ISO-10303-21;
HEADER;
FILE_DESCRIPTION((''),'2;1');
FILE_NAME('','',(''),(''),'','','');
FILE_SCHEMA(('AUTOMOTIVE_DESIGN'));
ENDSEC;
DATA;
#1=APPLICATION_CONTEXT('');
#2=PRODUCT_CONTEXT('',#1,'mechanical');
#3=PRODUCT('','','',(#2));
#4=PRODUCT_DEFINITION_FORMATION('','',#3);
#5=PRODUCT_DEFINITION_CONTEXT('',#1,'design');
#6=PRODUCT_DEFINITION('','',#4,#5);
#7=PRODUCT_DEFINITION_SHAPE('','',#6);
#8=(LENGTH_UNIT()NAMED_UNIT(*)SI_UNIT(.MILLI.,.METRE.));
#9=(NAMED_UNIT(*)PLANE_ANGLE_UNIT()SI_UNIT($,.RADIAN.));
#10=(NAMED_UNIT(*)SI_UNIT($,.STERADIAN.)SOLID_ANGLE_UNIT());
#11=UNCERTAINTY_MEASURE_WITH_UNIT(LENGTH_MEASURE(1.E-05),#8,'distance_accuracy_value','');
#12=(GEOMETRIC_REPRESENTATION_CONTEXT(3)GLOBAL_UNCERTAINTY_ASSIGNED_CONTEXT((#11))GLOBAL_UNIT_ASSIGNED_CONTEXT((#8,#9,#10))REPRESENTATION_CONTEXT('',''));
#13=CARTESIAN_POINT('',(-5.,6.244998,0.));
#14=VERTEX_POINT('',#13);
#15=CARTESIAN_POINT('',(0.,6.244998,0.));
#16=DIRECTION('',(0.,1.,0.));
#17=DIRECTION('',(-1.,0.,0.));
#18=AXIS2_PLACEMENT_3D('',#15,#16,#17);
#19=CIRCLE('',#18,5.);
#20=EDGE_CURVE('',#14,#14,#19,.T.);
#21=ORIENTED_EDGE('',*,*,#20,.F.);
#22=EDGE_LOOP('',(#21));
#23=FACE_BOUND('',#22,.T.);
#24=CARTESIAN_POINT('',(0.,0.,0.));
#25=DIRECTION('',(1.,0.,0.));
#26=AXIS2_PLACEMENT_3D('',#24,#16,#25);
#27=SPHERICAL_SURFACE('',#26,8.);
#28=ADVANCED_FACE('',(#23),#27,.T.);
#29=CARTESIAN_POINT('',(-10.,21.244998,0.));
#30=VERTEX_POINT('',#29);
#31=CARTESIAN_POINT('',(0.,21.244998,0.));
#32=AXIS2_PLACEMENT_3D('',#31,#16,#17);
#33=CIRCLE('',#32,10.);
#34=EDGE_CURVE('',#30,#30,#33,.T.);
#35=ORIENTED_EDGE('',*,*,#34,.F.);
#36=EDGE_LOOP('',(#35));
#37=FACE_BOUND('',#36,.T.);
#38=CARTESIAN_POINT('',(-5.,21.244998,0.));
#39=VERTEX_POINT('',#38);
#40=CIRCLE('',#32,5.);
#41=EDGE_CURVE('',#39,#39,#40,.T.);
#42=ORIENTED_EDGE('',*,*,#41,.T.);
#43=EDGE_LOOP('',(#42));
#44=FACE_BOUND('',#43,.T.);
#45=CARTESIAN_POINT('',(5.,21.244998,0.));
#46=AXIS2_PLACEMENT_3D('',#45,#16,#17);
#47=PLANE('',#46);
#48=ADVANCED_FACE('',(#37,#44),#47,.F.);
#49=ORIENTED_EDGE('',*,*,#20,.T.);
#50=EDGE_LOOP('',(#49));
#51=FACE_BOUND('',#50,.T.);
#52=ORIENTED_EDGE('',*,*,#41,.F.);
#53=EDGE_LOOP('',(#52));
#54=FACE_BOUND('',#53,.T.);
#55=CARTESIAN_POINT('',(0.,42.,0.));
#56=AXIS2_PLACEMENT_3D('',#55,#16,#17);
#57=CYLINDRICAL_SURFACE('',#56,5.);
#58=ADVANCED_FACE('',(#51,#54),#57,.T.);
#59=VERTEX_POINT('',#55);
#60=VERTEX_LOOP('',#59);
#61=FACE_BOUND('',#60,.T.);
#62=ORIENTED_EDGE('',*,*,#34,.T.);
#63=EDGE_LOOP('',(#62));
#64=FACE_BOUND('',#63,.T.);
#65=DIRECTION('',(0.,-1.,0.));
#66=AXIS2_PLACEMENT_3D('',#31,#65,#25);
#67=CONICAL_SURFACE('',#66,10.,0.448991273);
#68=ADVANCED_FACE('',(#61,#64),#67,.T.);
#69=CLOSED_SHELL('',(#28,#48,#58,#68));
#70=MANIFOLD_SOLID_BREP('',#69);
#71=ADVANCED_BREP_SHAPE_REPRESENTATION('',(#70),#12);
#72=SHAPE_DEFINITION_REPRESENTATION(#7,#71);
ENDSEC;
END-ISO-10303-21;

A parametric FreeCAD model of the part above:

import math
import FreeCAD as App
import Part
import Sketcher

V = App.Vector
Q = App.Units.Quantity

doc = App.newDocument("Part")
body = doc.addObject("PartDesign::Body", "Body")

sketch1 = doc.addObject("Sketcher::SketchObject", "Sketch")
body.addObject(sketch1)
sketch1.AttachmentSupport = (doc.XY_Plane, [""])
sketch1.MapMode = "FlatFace"
sketch1.addGeometry(Part.LineSegment(V(5, 6.244998, 0), V(5, 21.244998, 0)), False)
sketch1.addGeometry(Part.LineSegment(V(5, 21.244998, 0), V(10, 21.244998, 0)), False)
sketch1.addGeometry(Part.LineSegment(V(10, 21.244998, 0), V(0, 42, 0)), False)
sketch1.addGeometry(Part.LineSegment(V(0, 42, 0), V(0, -8, 0)), False)
sketch1.addGeometry(Part.ArcOfCircle(Part.Circle(V(0, 0, 0), V(0, 0, 1), 8), math.radians(-90), math.radians(51.317813)), False)
sketch1.addConstraint(Sketcher.Constraint("Coincident", 0, 2, 1, 1))
sketch1.addConstraint(Sketcher.Constraint("Coincident", 1, 2, 2, 1))
sketch1.addConstraint(Sketcher.Constraint("Coincident", 2, 2, 3, 1))
sketch1.addConstraint(Sketcher.Constraint("Coincident", 3, 2, 4, 1))
sketch1.addConstraint(Sketcher.Constraint("Coincident", 4, 2, 0, 1))
sketch1.addConstraint(Sketcher.Constraint("Vertical", 0))
sketch1.addConstraint(Sketcher.Constraint("Horizontal", 1))
sketch1.addConstraint(Sketcher.Constraint("Vertical", 3))
sketch1.addConstraint(Sketcher.Constraint("Coincident", 4, 3, -1, 1))
sketch1.addConstraint(Sketcher.Constraint("PointOnObject", 2, 2, -2))
sketch1.addConstraint(Sketcher.Constraint("Radius", 4, Q("8 mm")))
sketch1.addConstraint(Sketcher.Constraint("DistanceX", 1, 1, 1, 2, Q("5 mm")))
sketch1.addConstraint(Sketcher.Constraint("DistanceY", 0, 1, 0, 2, Q("15 mm")))
sketch1.addConstraint(Sketcher.Constraint("DistanceY", 3, 2, 3, 1, Q("50 mm")))
sketch1.addConstraint(Sketcher.Constraint("DistanceX", -1, 1, 0, 2, Q("5 mm")))
revolution = doc.addObject("PartDesign::Revolution", "Revolution")
body.addObject(revolution)
revolution.Profile = sketch1
revolution.ReferenceAxis = (sketch1, ["V_Axis"])
revolution.Angle = 360

doc.recompute()
